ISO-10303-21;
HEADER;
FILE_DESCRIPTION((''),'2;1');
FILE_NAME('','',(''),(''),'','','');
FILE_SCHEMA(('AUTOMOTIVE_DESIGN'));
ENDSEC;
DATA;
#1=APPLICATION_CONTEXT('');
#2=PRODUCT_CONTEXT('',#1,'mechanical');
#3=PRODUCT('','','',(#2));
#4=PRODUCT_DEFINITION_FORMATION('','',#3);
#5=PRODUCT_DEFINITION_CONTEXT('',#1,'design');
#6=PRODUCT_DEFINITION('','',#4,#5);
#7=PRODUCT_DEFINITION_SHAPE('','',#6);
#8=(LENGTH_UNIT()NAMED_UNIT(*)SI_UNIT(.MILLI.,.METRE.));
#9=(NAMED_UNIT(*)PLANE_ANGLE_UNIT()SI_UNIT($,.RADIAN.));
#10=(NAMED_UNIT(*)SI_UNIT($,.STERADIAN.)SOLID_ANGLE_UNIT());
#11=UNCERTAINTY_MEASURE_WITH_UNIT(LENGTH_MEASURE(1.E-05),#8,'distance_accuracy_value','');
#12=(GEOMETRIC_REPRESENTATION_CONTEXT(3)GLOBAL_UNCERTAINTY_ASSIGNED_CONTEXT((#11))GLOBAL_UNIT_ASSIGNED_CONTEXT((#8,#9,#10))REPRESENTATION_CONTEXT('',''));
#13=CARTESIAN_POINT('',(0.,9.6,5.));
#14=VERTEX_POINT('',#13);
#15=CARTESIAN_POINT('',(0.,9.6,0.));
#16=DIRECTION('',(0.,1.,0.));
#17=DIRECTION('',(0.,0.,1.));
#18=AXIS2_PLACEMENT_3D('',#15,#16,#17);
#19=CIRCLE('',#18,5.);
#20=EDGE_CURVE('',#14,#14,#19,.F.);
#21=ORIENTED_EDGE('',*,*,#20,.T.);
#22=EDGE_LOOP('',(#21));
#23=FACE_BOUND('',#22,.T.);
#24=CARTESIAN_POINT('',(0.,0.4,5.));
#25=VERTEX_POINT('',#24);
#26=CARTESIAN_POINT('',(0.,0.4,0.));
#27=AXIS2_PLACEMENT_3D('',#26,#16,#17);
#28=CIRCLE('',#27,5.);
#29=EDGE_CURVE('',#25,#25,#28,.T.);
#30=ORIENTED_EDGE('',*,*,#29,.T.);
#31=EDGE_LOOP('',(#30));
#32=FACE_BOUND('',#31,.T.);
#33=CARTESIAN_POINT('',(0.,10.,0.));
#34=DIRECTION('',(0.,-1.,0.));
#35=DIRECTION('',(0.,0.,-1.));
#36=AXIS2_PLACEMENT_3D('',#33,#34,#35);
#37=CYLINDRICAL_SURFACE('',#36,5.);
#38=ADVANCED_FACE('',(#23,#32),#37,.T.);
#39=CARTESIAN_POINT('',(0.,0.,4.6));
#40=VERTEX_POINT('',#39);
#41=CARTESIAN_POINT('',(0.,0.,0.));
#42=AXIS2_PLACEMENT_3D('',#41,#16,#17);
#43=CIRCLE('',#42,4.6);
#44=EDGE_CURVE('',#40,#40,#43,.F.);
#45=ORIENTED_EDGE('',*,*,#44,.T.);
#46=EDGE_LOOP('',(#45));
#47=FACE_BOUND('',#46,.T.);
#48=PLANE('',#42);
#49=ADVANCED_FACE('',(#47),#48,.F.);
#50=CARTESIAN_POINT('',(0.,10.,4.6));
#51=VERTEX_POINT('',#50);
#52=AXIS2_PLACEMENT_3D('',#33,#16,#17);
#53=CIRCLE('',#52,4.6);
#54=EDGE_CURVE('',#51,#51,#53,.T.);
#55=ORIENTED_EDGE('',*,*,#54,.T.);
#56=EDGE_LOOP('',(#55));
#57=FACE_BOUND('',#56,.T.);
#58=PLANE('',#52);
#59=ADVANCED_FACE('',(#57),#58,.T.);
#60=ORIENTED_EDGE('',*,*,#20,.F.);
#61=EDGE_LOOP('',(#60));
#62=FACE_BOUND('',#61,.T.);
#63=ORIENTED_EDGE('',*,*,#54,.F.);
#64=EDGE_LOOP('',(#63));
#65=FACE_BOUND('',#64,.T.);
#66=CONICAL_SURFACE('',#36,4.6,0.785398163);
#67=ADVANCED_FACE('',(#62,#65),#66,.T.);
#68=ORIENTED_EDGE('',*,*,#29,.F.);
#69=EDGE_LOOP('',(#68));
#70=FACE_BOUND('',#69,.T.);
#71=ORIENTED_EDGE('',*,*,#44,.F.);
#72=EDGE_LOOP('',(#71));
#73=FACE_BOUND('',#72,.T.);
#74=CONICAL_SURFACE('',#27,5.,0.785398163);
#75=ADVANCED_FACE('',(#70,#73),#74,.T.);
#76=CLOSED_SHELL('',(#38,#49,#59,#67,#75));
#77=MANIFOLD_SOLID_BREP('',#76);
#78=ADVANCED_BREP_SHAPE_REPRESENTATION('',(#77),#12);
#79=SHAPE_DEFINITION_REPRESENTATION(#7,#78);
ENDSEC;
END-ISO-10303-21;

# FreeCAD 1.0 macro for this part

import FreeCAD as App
import Part
import Sketcher


def edges_at(feature, points):
    """Names of the edges that pass closest to the given points."""
    edges = feature.Shape.Edges
    near = lambda p: min(range(len(edges)), key=lambda i: edges[i].distToShape(Part.Vertex(*p))[0])
    return sorted({f"Edge{near(p) + 1}" for p in points})

doc = App.newDocument("Part")
params = doc.addObject("Spreadsheet::Sheet", "Params")
for row, (alias, value) in enumerate([
    ("sketch1_diameter", "10 mm"),
    ("pad1_length", "10 mm"),
    ("chamfer_size", "0.4 mm"),
], start=1):
    params.set(f"A{row}", alias)
    params.set(f"B{row}", "=" + value)
    params.setAlias(f"B{row}", alias)

body = doc.addObject("PartDesign::Body", "Body")

sketch1 = body.newObject("Sketcher::SketchObject", "Sketch")
sketch1.AttachmentSupport = (doc.getObject("XZ_Plane"), [""])
sketch1.MapMode = "FlatFace"
sketch1.addGeometry(Part.Circle(App.Vector(0, 0, 0), App.Vector(0, 0, 1), 5), False)
sketch1.addConstraint(Sketcher.Constraint("Coincident", 0, 3, -1, 1))
sketch1.addConstraint(Sketcher.Constraint("Diameter", 0, 10.0))
sketch1.setExpression("Constraints[1]", "Params.sketch1_diameter")
pad1 = body.newObject("PartDesign::Pad", "Pad")
pad1.Profile = sketch1
pad1.setExpression("Length", "Params.pad1_length")
pad1.Reversed = True
doc.recompute()

chamfer = body.newObject("PartDesign::Chamfer", "Chamfer")
chamfer.Base = (pad1, edges_at(pad1, [(-5, 0, 0), (-5, 10, 0)]))
chamfer.setExpression("Size", "Params.chamfer_size")

doc.recompute()
